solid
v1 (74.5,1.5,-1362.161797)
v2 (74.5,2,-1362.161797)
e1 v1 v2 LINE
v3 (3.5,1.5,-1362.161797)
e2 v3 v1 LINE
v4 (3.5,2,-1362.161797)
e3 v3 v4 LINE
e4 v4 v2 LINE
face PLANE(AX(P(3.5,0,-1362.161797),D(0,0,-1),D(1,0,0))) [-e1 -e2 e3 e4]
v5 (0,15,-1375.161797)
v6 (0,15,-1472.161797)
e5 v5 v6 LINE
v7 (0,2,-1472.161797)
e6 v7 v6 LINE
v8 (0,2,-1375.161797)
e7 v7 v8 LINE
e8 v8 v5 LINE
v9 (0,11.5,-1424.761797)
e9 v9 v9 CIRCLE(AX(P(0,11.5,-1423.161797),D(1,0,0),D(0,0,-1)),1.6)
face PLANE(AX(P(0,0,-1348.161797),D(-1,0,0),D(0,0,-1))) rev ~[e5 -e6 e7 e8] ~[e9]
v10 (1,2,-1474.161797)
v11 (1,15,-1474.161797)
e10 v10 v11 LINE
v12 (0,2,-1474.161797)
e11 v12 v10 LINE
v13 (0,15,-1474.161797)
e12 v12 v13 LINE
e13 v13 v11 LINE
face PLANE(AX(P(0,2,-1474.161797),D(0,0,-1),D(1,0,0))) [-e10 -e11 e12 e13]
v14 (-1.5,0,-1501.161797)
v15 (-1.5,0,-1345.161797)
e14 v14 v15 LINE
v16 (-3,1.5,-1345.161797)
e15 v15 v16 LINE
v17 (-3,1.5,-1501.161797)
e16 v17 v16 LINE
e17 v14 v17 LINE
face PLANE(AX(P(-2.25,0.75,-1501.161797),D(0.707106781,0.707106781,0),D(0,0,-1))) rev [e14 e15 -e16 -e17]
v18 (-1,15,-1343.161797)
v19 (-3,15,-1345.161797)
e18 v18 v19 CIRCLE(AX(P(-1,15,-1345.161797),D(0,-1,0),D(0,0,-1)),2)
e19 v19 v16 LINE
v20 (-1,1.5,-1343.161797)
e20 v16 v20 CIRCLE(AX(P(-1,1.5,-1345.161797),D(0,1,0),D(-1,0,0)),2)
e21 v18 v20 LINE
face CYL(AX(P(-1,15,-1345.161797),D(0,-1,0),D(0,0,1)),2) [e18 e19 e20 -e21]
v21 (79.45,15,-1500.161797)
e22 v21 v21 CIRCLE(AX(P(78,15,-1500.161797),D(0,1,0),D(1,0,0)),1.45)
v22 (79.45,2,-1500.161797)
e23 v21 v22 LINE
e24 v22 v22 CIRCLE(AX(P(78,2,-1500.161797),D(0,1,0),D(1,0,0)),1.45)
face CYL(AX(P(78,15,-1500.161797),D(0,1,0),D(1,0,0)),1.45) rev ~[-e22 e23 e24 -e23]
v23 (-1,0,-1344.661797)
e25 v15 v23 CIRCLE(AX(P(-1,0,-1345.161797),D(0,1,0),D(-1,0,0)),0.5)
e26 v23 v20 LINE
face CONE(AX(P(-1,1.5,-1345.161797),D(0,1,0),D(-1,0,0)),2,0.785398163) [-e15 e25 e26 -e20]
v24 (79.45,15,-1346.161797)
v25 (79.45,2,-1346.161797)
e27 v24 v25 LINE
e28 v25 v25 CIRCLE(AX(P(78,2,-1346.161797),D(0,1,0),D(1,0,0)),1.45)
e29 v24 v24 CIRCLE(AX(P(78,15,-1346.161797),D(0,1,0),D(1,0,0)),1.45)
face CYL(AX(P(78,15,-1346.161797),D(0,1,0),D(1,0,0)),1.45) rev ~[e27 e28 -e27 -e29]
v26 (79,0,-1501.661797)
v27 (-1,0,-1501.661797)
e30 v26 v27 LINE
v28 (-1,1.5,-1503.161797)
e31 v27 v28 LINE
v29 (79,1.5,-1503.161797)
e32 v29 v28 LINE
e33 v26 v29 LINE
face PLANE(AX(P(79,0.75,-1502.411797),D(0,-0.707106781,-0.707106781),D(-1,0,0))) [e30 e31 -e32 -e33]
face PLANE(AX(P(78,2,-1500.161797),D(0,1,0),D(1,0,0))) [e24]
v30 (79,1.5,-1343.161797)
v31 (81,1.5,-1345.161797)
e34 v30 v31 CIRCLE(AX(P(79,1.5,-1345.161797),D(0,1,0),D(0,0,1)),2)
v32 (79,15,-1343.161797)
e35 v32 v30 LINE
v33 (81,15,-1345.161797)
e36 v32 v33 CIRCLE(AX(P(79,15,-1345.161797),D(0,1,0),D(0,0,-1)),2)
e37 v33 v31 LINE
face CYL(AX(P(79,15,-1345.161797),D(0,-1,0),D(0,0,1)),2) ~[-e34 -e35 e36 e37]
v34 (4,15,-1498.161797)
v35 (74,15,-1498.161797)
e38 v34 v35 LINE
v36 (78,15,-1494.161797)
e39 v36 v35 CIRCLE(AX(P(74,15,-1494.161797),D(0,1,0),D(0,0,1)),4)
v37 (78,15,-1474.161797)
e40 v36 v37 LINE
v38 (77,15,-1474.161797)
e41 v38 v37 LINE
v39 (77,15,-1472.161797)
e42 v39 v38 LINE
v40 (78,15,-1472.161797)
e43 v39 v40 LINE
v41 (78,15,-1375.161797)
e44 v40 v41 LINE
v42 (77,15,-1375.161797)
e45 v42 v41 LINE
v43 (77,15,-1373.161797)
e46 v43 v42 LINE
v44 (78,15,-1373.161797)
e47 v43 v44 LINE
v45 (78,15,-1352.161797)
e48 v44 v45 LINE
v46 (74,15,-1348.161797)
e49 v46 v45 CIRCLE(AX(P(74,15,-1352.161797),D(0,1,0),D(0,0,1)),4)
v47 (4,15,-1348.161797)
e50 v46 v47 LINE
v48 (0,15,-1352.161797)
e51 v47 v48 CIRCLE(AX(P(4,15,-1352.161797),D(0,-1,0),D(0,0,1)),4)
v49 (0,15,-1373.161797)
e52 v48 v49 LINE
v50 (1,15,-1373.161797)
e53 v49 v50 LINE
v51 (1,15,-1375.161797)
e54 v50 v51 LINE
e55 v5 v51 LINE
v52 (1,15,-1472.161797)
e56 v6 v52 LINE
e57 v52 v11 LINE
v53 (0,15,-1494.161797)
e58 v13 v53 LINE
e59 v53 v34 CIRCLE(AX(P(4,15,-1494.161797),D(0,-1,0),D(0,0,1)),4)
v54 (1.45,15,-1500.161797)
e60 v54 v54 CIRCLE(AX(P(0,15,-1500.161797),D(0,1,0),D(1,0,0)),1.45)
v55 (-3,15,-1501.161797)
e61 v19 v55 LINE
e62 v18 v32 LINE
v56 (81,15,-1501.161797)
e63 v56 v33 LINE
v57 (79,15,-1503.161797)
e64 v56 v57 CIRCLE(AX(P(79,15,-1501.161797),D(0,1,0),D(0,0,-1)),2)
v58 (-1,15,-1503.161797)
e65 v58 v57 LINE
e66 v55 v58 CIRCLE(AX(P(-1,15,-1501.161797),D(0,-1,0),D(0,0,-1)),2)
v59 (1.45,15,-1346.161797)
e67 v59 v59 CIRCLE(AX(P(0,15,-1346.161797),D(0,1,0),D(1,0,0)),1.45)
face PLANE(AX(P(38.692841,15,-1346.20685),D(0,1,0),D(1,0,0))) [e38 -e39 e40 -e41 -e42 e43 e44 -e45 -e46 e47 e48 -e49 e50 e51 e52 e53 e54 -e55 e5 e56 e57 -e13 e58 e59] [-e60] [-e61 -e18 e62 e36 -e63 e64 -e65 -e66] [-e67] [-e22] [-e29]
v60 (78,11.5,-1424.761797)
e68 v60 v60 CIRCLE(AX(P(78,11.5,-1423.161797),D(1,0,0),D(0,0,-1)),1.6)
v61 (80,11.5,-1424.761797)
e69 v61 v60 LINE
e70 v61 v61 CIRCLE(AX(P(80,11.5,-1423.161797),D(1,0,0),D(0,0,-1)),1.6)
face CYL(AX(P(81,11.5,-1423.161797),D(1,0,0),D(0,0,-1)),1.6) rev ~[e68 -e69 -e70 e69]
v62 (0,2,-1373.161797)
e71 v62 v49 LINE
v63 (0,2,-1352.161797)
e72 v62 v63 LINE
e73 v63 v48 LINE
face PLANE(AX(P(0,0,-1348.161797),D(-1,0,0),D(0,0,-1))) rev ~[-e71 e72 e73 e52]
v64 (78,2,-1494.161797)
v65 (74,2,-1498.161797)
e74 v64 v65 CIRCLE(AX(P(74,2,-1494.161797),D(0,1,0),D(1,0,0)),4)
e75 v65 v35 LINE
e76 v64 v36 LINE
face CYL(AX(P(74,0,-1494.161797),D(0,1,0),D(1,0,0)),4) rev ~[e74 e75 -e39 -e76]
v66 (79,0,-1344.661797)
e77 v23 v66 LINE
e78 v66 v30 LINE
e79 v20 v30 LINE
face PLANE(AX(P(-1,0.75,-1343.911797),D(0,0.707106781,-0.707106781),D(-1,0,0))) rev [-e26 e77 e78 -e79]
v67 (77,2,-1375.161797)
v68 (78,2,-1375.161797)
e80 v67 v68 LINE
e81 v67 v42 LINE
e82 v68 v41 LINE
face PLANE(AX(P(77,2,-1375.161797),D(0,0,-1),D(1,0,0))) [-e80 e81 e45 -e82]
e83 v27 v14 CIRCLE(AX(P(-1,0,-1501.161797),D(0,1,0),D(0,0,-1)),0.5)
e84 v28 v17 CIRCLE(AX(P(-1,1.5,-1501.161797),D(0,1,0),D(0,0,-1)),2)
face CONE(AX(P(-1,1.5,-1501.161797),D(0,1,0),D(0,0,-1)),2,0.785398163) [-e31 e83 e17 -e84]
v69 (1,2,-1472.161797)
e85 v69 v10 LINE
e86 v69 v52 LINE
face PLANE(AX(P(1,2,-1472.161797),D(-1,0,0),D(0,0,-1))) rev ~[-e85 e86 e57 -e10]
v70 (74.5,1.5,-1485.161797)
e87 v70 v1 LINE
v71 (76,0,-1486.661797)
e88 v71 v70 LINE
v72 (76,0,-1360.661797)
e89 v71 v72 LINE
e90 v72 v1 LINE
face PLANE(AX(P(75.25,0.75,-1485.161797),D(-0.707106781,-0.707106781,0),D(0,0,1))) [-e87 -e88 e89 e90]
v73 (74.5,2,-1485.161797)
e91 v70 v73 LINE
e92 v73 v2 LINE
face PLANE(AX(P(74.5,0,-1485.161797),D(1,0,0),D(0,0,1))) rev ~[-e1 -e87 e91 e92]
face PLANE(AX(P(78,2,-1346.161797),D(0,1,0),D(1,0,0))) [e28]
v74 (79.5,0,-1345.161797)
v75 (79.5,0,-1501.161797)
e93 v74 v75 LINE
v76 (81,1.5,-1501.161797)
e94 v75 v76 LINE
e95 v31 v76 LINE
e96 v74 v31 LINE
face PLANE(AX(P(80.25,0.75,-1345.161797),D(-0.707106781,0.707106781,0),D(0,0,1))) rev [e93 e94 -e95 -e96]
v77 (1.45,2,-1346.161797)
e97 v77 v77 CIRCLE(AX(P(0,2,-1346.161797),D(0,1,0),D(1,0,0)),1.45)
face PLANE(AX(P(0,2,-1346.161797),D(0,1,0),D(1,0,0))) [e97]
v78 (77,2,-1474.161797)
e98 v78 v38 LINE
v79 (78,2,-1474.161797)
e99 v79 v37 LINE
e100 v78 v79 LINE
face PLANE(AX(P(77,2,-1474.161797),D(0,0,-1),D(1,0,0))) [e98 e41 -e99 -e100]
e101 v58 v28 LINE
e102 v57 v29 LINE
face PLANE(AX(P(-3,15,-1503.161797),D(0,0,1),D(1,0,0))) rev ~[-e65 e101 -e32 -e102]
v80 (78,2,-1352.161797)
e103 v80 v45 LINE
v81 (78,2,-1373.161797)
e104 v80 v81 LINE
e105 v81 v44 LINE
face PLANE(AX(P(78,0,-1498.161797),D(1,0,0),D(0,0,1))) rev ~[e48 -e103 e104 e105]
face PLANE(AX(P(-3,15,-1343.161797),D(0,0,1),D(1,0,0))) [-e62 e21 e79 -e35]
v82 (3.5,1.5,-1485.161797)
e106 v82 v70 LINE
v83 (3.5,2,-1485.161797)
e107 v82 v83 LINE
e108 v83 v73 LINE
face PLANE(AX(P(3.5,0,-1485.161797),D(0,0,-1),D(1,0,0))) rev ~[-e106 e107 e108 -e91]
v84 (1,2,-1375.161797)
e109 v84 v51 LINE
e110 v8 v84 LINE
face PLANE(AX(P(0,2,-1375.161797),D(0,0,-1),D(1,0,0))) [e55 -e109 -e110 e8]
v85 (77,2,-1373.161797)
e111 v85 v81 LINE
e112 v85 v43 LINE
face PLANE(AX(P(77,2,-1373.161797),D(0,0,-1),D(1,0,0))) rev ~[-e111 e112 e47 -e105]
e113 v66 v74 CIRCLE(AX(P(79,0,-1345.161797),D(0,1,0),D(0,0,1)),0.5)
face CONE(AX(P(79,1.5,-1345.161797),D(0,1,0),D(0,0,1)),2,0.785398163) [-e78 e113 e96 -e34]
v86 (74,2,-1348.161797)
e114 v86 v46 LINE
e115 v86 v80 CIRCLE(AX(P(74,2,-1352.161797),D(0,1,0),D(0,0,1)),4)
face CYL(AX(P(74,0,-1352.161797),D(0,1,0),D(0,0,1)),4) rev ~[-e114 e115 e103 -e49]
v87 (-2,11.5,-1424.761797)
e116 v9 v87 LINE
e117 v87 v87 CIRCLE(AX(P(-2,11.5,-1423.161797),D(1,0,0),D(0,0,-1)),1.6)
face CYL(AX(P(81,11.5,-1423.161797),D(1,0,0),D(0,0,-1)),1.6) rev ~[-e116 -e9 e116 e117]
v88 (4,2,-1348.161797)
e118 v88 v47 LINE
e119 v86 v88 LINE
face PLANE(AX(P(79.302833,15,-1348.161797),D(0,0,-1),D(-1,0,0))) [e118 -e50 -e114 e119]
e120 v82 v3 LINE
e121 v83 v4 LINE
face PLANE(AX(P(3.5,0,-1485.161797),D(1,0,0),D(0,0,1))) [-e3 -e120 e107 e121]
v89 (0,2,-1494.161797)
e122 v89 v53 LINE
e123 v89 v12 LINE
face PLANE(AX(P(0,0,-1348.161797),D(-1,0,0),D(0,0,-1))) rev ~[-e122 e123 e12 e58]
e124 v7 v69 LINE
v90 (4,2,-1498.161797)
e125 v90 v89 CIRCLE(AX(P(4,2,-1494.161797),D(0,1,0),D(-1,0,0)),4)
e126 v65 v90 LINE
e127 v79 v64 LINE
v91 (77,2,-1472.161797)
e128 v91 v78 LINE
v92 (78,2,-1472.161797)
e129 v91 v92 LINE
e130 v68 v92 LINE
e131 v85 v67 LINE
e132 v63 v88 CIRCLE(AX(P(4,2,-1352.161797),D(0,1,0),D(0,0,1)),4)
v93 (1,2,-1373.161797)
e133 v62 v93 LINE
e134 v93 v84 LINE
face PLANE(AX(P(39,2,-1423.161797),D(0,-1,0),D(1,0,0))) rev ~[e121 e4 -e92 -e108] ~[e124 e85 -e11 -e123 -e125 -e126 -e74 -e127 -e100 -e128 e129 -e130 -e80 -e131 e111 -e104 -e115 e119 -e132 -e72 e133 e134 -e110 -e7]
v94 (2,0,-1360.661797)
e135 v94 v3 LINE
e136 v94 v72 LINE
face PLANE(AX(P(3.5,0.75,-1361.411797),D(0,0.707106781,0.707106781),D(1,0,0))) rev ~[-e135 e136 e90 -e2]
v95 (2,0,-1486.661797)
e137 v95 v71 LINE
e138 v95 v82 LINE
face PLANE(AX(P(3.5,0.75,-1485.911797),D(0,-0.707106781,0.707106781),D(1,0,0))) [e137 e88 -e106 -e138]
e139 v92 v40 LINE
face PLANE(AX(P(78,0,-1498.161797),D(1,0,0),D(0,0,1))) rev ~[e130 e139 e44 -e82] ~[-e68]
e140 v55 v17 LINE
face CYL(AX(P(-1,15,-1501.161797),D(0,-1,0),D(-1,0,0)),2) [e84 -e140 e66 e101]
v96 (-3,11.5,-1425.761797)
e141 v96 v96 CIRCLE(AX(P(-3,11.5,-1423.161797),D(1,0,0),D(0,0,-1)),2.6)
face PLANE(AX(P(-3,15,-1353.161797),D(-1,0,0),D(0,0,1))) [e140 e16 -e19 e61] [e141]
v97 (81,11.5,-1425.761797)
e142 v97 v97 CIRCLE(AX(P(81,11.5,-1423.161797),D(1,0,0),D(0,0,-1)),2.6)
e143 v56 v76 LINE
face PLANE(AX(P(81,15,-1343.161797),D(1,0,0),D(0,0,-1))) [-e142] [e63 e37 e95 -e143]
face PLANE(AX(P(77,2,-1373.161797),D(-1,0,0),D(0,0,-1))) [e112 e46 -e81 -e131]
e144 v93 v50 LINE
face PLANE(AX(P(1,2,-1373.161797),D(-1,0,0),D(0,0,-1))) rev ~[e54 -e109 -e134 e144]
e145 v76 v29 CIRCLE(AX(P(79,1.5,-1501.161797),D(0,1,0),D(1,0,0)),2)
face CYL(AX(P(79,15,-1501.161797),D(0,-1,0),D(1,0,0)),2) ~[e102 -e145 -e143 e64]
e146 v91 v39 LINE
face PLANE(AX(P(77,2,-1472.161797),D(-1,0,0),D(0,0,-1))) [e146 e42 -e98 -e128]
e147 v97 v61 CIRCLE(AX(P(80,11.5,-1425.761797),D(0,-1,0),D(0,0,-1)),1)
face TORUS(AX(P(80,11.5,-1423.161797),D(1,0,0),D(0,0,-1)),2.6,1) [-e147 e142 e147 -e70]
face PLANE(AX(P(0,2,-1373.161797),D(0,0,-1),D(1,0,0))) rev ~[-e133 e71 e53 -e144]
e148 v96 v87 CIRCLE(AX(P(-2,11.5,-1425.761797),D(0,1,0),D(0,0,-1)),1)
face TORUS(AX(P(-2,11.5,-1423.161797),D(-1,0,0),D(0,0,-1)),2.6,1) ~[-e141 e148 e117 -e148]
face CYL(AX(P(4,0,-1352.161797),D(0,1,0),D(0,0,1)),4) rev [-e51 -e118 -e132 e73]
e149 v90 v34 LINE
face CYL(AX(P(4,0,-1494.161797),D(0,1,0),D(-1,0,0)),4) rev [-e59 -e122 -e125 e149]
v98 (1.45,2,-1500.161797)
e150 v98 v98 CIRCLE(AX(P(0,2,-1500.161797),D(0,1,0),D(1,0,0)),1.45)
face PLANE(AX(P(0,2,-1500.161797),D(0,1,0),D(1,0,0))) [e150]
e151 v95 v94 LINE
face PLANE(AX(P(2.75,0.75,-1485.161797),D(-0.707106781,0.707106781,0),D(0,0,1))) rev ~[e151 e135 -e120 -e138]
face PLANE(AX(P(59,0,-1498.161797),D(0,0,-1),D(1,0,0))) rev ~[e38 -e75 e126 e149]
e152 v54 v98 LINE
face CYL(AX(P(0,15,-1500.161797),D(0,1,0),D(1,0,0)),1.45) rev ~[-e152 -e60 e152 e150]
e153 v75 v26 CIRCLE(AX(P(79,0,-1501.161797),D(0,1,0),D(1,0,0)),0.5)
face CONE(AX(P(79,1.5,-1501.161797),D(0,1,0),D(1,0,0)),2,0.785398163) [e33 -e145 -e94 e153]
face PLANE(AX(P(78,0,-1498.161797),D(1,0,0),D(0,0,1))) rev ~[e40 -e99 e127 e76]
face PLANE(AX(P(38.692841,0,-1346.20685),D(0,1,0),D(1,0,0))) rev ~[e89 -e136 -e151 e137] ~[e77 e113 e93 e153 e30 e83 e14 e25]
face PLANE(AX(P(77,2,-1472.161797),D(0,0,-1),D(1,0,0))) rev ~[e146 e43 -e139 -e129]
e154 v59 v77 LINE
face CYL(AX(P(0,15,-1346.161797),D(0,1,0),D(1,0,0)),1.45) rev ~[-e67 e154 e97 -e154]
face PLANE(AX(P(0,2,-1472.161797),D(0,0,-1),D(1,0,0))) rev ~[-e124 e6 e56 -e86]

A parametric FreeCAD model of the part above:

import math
import FreeCAD as App
import Part
import Sketcher

V = App.Vector
Q = App.Units.Quantity


def edges_at(feature, points):
    """Names of the edges that pass closest to the given points."""
    edges = feature.Shape.Edges
    near = lambda p: min(range(len(edges)), key=lambda i: edges[i].distToShape(Part.Vertex(*p))[0])
    return sorted({f"Edge{near(p) + 1}" for p in points})


def add_polygon(sketch, points):
    """Adds a closed chain of lines whose ends are joined by coincident constraints."""
    first, n = sketch.GeometryCount, len(points)
    for a, b in zip(points, points[1:] + points[:1]):
        sketch.addGeometry(Part.LineSegment(App.Vector(*a, 0), App.Vector(*b, 0)), False)
    for i in range(n):
        sketch.addConstraint(Sketcher.Constraint("Coincident", first + i, 2, first + (i + 1) % n, 1))

doc = App.newDocument("Part")
body = doc.addObject("PartDesign::Body", "Body")

sketch1 = body.newObject("Sketcher::SketchObject", "Sketch")
sketch1.AttachmentSupport = (doc.getObject("XZ_Plane"), [""])
sketch1.MapMode = "FlatFace"
add_polygon(sketch1, [(-3, -1501), (-3, -1345), (17, -1345), (27, -1325), (51, -1325), (61, -1345), (81, -1345), (81, -1501), (61, -1501), (51, -1521), (27, -1521), (17, -1501)])
add_polygon(sketch1, [(49, -1518), (59, -1498), (78, -1498), (78, -1348), (59, -1348), (49, -1328), (29, -1328), (19, -1348), (0, -1348), (0, -1498), (19, -1498), (29, -1518)])
sketch1.addConstraint([
    Sketcher.Constraint("Vertical", 0),
    Sketcher.Constraint("Horizontal", 1),
    Sketcher.Constraint("Horizontal", 3),
    Sketcher.Constraint("Horizontal", 5),
    Sketcher.Constraint("Vertical", 6),
    Sketcher.Constraint("Horizontal", 7),
    Sketcher.Constraint("Horizontal", 9),
    Sketcher.Constraint("Horizontal", 11),
    Sketcher.Constraint("Horizontal", 13),
    Sketcher.Constraint("Vertical", 14),
    Sketcher.Constraint("Horizontal", 15),
    Sketcher.Constraint("Horizontal", 17),
    Sketcher.Constraint("Horizontal", 19),
    Sketcher.Constraint("Vertical", 20),
    Sketcher.Constraint("Horizontal", 21),
    Sketcher.Constraint("Horizontal", 23),
    Sketcher.Constraint("PointOnObject", 19, 2, -2),
    Sketcher.Constraint("Parallel", 2, 8),
    Sketcher.Constraint("Parallel", 4, 10),
    Sketcher.Constraint("Parallel", 8, 12),
    Sketcher.Constraint("Parallel", 10, 16),
    Sketcher.Constraint("Parallel", 12, 18),
    Sketcher.Constraint("Parallel", 16, 22),
    Sketcher.Constraint("Horizontal", 1, 2, 4, 2),
    Sketcher.Constraint("Horizontal", 7, 2, 10, 2),
    Sketcher.Constraint("Horizontal", 15, 2, 18, 2),
    Sketcher.Constraint("Horizontal", 13, 2, 20, 2),
    Sketcher.Constraint("Vertical", 4, 2, 7, 2),
    Sketcher.Constraint("Vertical", 3, 2, 8, 2),
    Sketcher.Constraint("Vertical", 2, 2, 9, 2),
    Sketcher.Constraint("Vertical", 1, 2, 10, 2),
    Sketcher.Constraint("Vertical", 12, 2, 15, 2),
    Sketcher.Constraint("Vertical", 18, 2, 21, 2),
    Sketcher.Constraint("Vertical", 17, 2, 22, 2),
    Sketcher.Constraint("Equal", 1, 5),
    Sketcher.Constraint("Equal", 15, 19),
    Sketcher.Constraint("Equal", 10, 12),
    Sketcher.Constraint("DistanceX", 13, 1, 13, 2, Q("19 mm")),
    Sketcher.Constraint("DistanceX", 17, 2, 17, 1, Q("20 mm")),
    Sketcher.Constraint("DistanceY", 0, 1, 0, 2, Q("156 mm")),
    Sketcher.Constraint("DistanceY", 14, 1, 14, 2, Q("150 mm")),
    Sketcher.Constraint("DistanceX", 0, 2, -1, 1, Q("3 mm")),
    Sketcher.Constraint("DistanceX", -1, 1, 5, 2, Q("81 mm")),
    Sketcher.Constraint("DistanceX", -1, 1, 12, 2, Q("59 mm")),
    Sketcher.Constraint("DistanceY", 1, 2, 2, 2, Q("20 mm")),
    Sketcher.Constraint("DistanceY", 7, 2, 12, 2, Q("3 mm")),
    Sketcher.Constraint("DistanceX", 1, 1, 1, 2, Q("20.145898 mm")),
    Sketcher.Constraint("DistanceY", 0, 2, -1, 1, Q("1345.161797 mm")),
])
pad1 = body.newObject("PartDesign::Pad", "Pad")
pad1.Profile = sketch1
pad1.Length = 15
pad1.Reversed = True
doc.recompute()

fillet = body.newObject("PartDesign::Fillet", "Fillet")
fillet.Base = (pad1, edges_at(pad1, [
    (49, 7.5, -1518.162),
    (29, 7.5, -1518.162),
    (19, 7.5, -1498.162),
    (59, 7.5, -1498.162),
    (17.146, 7.5, -1501.162),
    (27.146, 7.5, -1521.162),
    (50.854, 7.5, -1521.162),
    (60.854, 7.5, -1501.162),
]))
fillet.Radius = 2
doc.recompute()

fillet2 = body.newObject("PartDesign::Fillet", "Fillet001")
fillet2.Base = (fillet, edges_at(fillet, [
    (19, 7.5, -1348.162),
    (29, 7.5, -1328.162),
    (49, 7.5, -1328.162),
    (59, 7.5, -1348.162),
    (60.854, 7.5, -1345.162),
    (50.854, 7.5, -1325.162),
    (27.146, 7.5, -1325.162),
    (17.146, 7.5, -1345.162),
]))
fillet2.Radius = 2
doc.recompute()

fillet3 = body.newObject("PartDesign::Fillet", "Fillet002")
fillet3.Base = (fillet2, edges_at(fillet2, [
    (-3, 7.5, -1501.162),
    (81, 7.5, -1501.162),
    (81, 7.5, -1345.162),
    (-3, 7.5, -1345.162),
]))
fillet3.Radius = 4
doc.recompute()

fillet4 = body.newObject("PartDesign::Fillet", "Fillet003")
fillet4.Base = (fillet3, edges_at(fillet3, [
    (0, 7.5, -1498.162),
    (0, 7.5, -1348.162),
    (78, 7.5, -1348.162),
    (78, 7.5, -1498.162),
]))
fillet4.Radius = 4

sketch2 = body.newObject("Sketcher::SketchObject", "Sketch001")
sketch2.AttachmentSupport = (doc.getObject("XZ_Plane"), [""])
sketch2.MapMode = "FlatFace"
sketch2.AttachmentOffset = App.Placement(V(0, 0, -15), App.Rotation())
sketch2.addGeometry([
    Part.LineSegment(V(8.5, -1345.2, 0), V(22.1, -1335.2, 0)),
    Part.LineSegment(V(22.1, -1335.2, 0), V(17.7, -1344.1, 0)),
    Part.ArcOfCircle(Part.Circle(V(15.9, -1343.2, 0), V(0, 0, 1), 2), math.radians(-90), math.radians(-27)),
    Part.LineSegment(V(15.9, -1345.2, 0), V(8.5, -1345.2, 0)),
    Part.LineSegment(V(69.5, -1345.2, 0), V(62.1, -1345.2, 0)),
    Part.ArcOfCircle(Part.Circle(V(62.1, -1343.2, 0), V(0, 0, 1), 2), math.radians(-153), math.radians(-90)),
    Part.LineSegment(V(60.3, -1344.1, 0), V(55.9, -1335.2, 0)),
    Part.LineSegment(V(55.9, -1335.2, 0), V(69.5, -1345.2, 0)),
    Part.LineSegment(V(69.5, -1501.2, 0), V(55.9, -1511.2, 0)),
    Part.LineSegment(V(55.9, -1511.2, 0), V(60.3, -1502.3, 0)),
    Part.ArcOfCircle(Part.Circle(V(62.1, -1503.2, 0), V(0, 0, 1), 2), math.radians(90), math.radians(153)),
    Part.LineSegment(V(62.1, -1501.2, 0), V(69.5, -1501.2, 0)),
    Part.LineSegment(V(8.5, -1501.2, 0), V(15.9, -1501.2, 0)),
    Part.ArcOfCircle(Part.Circle(V(15.9, -1503.2, 0), V(0, 0, 1), 2), math.radians(27), math.radians(90)),
    Part.LineSegment(V(17.7, -1502.3, 0), V(22.1, -1511.2, 0)),
    Part.LineSegment(V(22.1, -1511.2, 0), V(8.5, -1501.2, 0)),
], False)
sketch2.addConstraint([
    Sketcher.Constraint("Coincident", 0, 2, 1, 1),
    Sketcher.Constraint("Tangent", 1, 2, 2, 2),
    Sketcher.Constraint("Tangent", 2, 1, 3, 1),
    Sketcher.Constraint("Coincident", 3, 2, 0, 1),
    Sketcher.Constraint("Tangent", 4, 2, 5, 2),
    Sketcher.Constraint("Tangent", 5, 1, 6, 1),
    Sketcher.Constraint("Coincident", 6, 2, 7, 1),
    Sketcher.Constraint("Coincident", 7, 2, 4, 1),
    Sketcher.Constraint("Coincident", 8, 2, 9, 1),
    Sketcher.Constraint("Tangent", 9, 2, 10, 2),
    Sketcher.Constraint("Tangent", 10, 1, 11, 1),
    Sketcher.Constraint("Coincident", 11, 2, 8, 1),
    Sketcher.Constraint("Tangent", 12, 2, 13, 2),
    Sketcher.Constraint("Tangent", 13, 1, 14, 1),
    Sketcher.Constraint("Coincident", 14, 2, 15, 1),
    Sketcher.Constraint("Coincident", 15, 2, 12, 1),
    Sketcher.Constraint("Horizontal", 3),
    Sketcher.Constraint("Horizontal", 4),
    Sketcher.Constraint("Horizontal", 11),
    Sketcher.Constraint("Horizontal", 12),
    Sketcher.Constraint("Equal", 2, 5),
    Sketcher.Constraint("Equal", 5, 10),
    Sketcher.Constraint("Equal", 10, 13),
    Sketcher.Constraint("Parallel", 0, 8),
    Sketcher.Constraint("Parallel", 1, 9),
    Sketcher.Constraint("Parallel", 6, 14),
    Sketcher.Constraint("Parallel", 7, 15),
    Sketcher.Constraint("Horizontal", 2, 3, 5, 3),
    Sketcher.Constraint("Horizontal", 10, 3, 13, 3),
    Sketcher.Constraint("Horizontal", 1, 2, 5, 1),
    Sketcher.Constraint("Horizontal", 0, 2, 6, 2),
    Sketcher.Constraint("Horizontal", 8, 2, 14, 2),
    Sketcher.Constraint("Vertical", 5, 3, 10, 3),
    Sketcher.Constraint("Vertical", 2, 3, 13, 3),
    Sketcher.Constraint("Vertical", 6, 2, 8, 2),
    Sketcher.Constraint("Vertical", 7, 2, 11, 2),
    Sketcher.Constraint("Radius", 2, Q("2 mm")),
    Sketcher.Constraint("DistanceY", 10, 3, 5, 3, Q("160 mm")),
    Sketcher.Constraint("DistanceY", 2, 3, 0, 2, Q("8 mm")),
    Sketcher.Constraint("DistanceX", -1, 1, 0, 2, Q("22.145898 mm")),
    Sketcher.Constraint("DistanceX", -1, 1, 6, 2, Q("55.854102 mm")),
    Sketcher.Constraint("Distance", 1, Q("9.944272 mm")),
    Sketcher.Constraint("DistanceX", 3, 2, 3, 1, Q("7.454915 mm")),
    Sketcher.Constraint("DistanceY", 9, 2, -1, 1, Q("1502.26737 mm")),
])
pad2 = body.newObject("PartDesign::Pad", "Pad001")
pad2.Profile = sketch2
pad2.Length = 15
doc.recompute()

fillet5 = body.newObject("PartDesign::Fillet", "Fillet004")
fillet5.Base = (pad2, edges_at(pad2, [
    (8.455, 7.5, -1345.162),
    (22.146, 7.5, -1335.162),
    (69.545, 7.5, -1345.162),
    (55.854, 7.5, -1335.162),
    (55.854, 7.5, -1511.162),
    (69.545, 7.5, -1501.162),
    (8.455, 7.5, -1501.162),
    (22.146, 7.5, -1511.162),
]))
fillet5.Radius = 2

sketch3 = body.newObject("Sketcher::SketchObject", "Sketch002")
sketch3.AttachmentSupport = (doc.getObject("XZ_Plane"), [""])
sketch3.MapMode = "FlatFace"
sketch3.AttachmentOffset = App.Placement(V(0, 0, -15), App.Rotation())
sketch3.addGeometry([
    Part.Circle(V(16, -1344.7, 0), V(0, 0, 1), 1.4),
    Part.Circle(V(62, -1344.7, 0), V(0, 0, 1), 1.4),
    Part.Circle(V(62, -1501.7, 0), V(0, 0, 1), 1.4),
    Part.Circle(V(16, -1501.7, 0), V(0, 0, 1), 1.4),
], False)
sketch3.addConstraint([
    Sketcher.Constraint("Equal", 0, 1),
    Sketcher.Constraint("Equal", 1, 2),
    Sketcher.Constraint("Equal", 2, 3),
    Sketcher.Constraint("Horizontal", 0, 3, 1, 3),
    Sketcher.Constraint("Horizontal", 2, 3, 3, 3),
    Sketcher.Constraint("Vertical", 1, 3, 2, 3),
    Sketcher.Constraint("Vertical", 0, 3, 3, 3),
    Sketcher.Constraint("Diameter", 0, Q("2.9 mm")),
    Sketcher.Constraint("DistanceX", -1, 1, 0, 3, Q("16 mm")),
    Sketcher.Constraint("DistanceX", -1, 1, 1, 3, Q("62 mm")),
    Sketcher.Constraint("DistanceY", 2, 3, 1, 3, Q("157 mm")),
    Sketcher.Constraint("DistanceY", 0, 3, -1, 1, Q("1344.661797 mm")),
])
pocket1 = body.newObject("PartDesign::Pocket", "Pocket")
pocket1.Profile = sketch3
pocket1.Length = 10
pocket1.Reversed = True

sketch4 = body.newObject("Sketcher::SketchObject", "Sketch003")
sketch4.AttachmentSupport = (doc.getObject("XZ_Plane"), [""])
sketch4.MapMode = "FlatFace"
sketch4.addGeometry([
    Part.LineSegment(V(70.2, -1501.2, 0), V(77, -1501.2, 0)),
    Part.ArcOfCircle(Part.Circle(V(77, -1497.2, 0), V(0, 0, 1), 4), math.radians(-90), math.radians(0)),
    Part.LineSegment(V(81, -1497.2, 0), V(81, -1487.2, 0)),
    Part.LineSegment(V(81, -1487.2, 0), V(-3, -1487.2, 0)),
    Part.LineSegment(V(-3, -1487.2, 0), V(-3, -1497.2, 0)),
    Part.ArcOfCircle(Part.Circle(V(1, -1497.2, 0), V(0, 0, 1), 4), math.radians(-180), math.radians(-90)),
    Part.LineSegment(V(1, -1501.2, 0), V(7.8, -1501.2, 0)),
    Part.ArcOfCircle(Part.Circle(V(7.8, -1503.2, 0), V(0, 0, 1), 2), math.radians(54), math.radians(90)),
    Part.LineSegment(V(9, -1501.5, 0), V(21.8, -1510.9, 0)),
    Part.ArcOfCircle(Part.Circle(V(20.6, -1512.5, 0), V(0, 0, 1), 2), math.radians(27), math.radians(54)),
    Part.LineSegment(V(22.4, -1511.6, 0), V(26.6, -1520.1, 0)),
    Part.ArcOfCircle(Part.Circle(V(28.4, -1519.2, 0), V(0, 0, 1), 2), math.radians(-153), math.radians(-90)),
    Part.LineSegment(V(28.4, -1521.2, 0), V(49.6, -1521.2, 0)),
    Part.ArcOfCircle(Part.Circle(V(49.6, -1519.2, 0), V(0, 0, 1), 2), math.radians(-90), math.radians(-27)),
    Part.LineSegment(V(51.4, -1520.1, 0), V(55.6, -1511.6, 0)),
    Part.ArcOfCircle(Part.Circle(V(57.4, -1512.5, 0), V(0, 0, 1), 2), math.radians(126), math.radians(153)),
    Part.LineSegment(V(56.2, -1510.9, 0), V(69, -1501.5, 0)),
    Part.ArcOfCircle(Part.Circle(V(70.2, -1503.2, 0), V(0, 0, 1), 2), math.radians(90), math.radians(126)),
    Part.LineSegment(V(81, -1359.2, 0), V(81, -1349.2, 0)),
    Part.ArcOfCircle(Part.Circle(V(77, -1349.2, 0), V(0, 0, 1), 4), math.radians(0), math.radians(90)),
    Part.LineSegment(V(77, -1345.2, 0), V(70.2, -1345.2, 0)),
    Part.ArcOfCircle(Part.Circle(V(70.2, -1343.2, 0), V(0, 0, 1), 2), math.radians(-126), math.radians(-90)),
    Part.LineSegment(V(69, -1344.8, 0), V(56.2, -1335.4, 0)),
    Part.ArcOfCircle(Part.Circle(V(57.4, -1333.8, 0), V(0, 0, 1), 2), math.radians(-153), math.radians(-126)),
    Part.LineSegment(V(55.6, -1334.7, 0), V(51.4, -1326.3, 0)),
    Part.ArcOfCircle(Part.Circle(V(49.6, -1327.2, 0), V(0, 0, 1), 2), math.radians(27), math.radians(90)),
    Part.LineSegment(V(49.6, -1325.2, 0), V(28.4, -1325.2, 0)),
    Part.ArcOfCircle(Part.Circle(V(28.4, -1327.2, 0), V(0, 0, 1), 2), math.radians(90), math.radians(153)),
    Part.LineSegment(V(26.6, -1326.3, 0), V(22.4, -1334.7, 0)),
    Part.ArcOfCircle(Part.Circle(V(20.6, -1333.8, 0), V(0, 0, 1), 2), math.radians(-54), math.radians(-27)),
    Part.LineSegment(V(21.8, -1335.4, 0), V(9, -1344.8, 0)),
    Part.ArcOfCircle(Part.Circle(V(7.8, -1343.2, 0), V(0, 0, 1), 2), math.radians(-90), math.radians(-54)),
    Part.LineSegment(V(7.8, -1345.2, 0), V(1, -1345.2, 0)),
    Part.ArcOfCircle(Part.Circle(V(1, -1349.2, 0), V(0, 0, 1), 4), math.radians(90), math.radians(180)),
    Part.LineSegment(V(-3, -1349.2, 0), V(-3, -1359.2, 0)),
    Part.LineSegment(V(-3, -1359.2, 0), V(81, -1359.2, 0)),
], False)
sketch4.addConstraint([
    Sketcher.Constraint("Tangent", 0, 2, 1, 1),
    Sketcher.Constraint("Tangent", 1, 2, 2, 1),
    Sketcher.Constraint("Coincident", 2, 2, 3, 1),
    Sketcher.Constraint("Coincident", 3, 2, 4, 1),
    Sketcher.Constraint("Tangent", 4, 2, 5, 1),
    Sketcher.Constraint("Tangent", 5, 2, 6, 1),
    Sketcher.Constraint("Tangent", 6, 2, 7, 2),
    Sketcher.Constraint("Tangent", 7, 1, 8, 1),
    Sketcher.Constraint("Tangent", 8, 2, 9, 2),
    Sketcher.Constraint("Tangent", 9, 1, 10, 1),
    Sketcher.Constraint("Tangent", 10, 2, 11, 1),
    Sketcher.Constraint("Tangent", 11, 2, 12, 1),
    Sketcher.Constraint("Tangent", 12, 2, 13, 1),
    Sketcher.Constraint("Tangent", 13, 2, 14, 1),
    Sketcher.Constraint("Tangent", 14, 2, 15, 2),
    Sketcher.Constraint("Tangent", 15, 1, 16, 1),
    Sketcher.Constraint("Tangent", 16, 2, 17, 2),
    Sketcher.Constraint("Tangent", 17, 1, 0, 1),
    Sketcher.Constraint("Tangent", 18, 2, 19, 1),
    Sketcher.Constraint("Tangent", 19, 2, 20, 1),
    Sketcher.Constraint("Tangent", 20, 2, 21, 2),
    Sketcher.Constraint("Tangent", 21, 1, 22, 1),
    Sketcher.Constraint("Tangent", 22, 2, 23, 2),
    Sketcher.Constraint("Tangent", 23, 1, 24, 1),
    Sketcher.Constraint("Tangent", 24, 2, 25, 1),
    Sketcher.Constraint("Tangent", 25, 2, 26, 1),
    Sketcher.Constraint("Tangent", 26, 2, 27, 1),
    Sketcher.Constraint("Tangent", 27, 2, 28, 1),
    Sketcher.Constraint("Tangent", 28, 2, 29, 2),
    Sketcher.Constraint("Tangent", 29, 1, 30, 1),
    Sketcher.Constraint("Tangent", 30, 2, 31, 2),
    Sketcher.Constraint("Tangent", 31, 1, 32, 1),
    Sketcher.Constraint("Tangent", 32, 2, 33, 1),
    Sketcher.Constraint("Tangent", 33, 2, 34, 1),
    Sketcher.Constraint("Coincident", 34, 2, 35, 1),
    Sketcher.Constraint("Coincident", 35, 2, 18, 1),
    Sketcher.Constraint("Horizontal", 0),
    Sketcher.Constraint("Vertical", 2),
    Sketcher.Constraint("Horizontal", 3),
    Sketcher.Constraint("Vertical", 4),
    Sketcher.Constraint("Horizontal", 6),
    Sketcher.Constraint("Horizontal", 12),
    Sketcher.Constraint("Vertical", 18),
    Sketcher.Constraint("Horizontal", 20),
    Sketcher.Constraint("Horizontal", 26),
    Sketcher.Constraint("Horizontal", 32),
    Sketcher.Constraint("Vertical", 34),
    Sketcher.Constraint("Horizontal", 35),
    Sketcher.Constraint("Equal", 1, 5),
    Sketcher.Constraint("Equal", 7, 9),
    Sketcher.Constraint("Equal", 9, 11),
    Sketcher.Constraint("Equal", 11, 13),
    Sketcher.Constraint("Equal", 13, 15),
    Sketcher.Constraint("Equal", 15, 17),
    Sketcher.Constraint("Equal", 5, 19),
    Sketcher.Constraint("Equal", 17, 21),
    Sketcher.Constraint("Equal", 21, 23),
    Sketcher.Constraint("Equal", 23, 25),
    Sketcher.Constraint("Equal", 25, 27),
    Sketcher.Constraint("Equal", 27, 29),
    Sketcher.Constraint("Equal", 29, 31),
    Sketcher.Constraint("Equal", 19, 33),
    Sketcher.Constraint("Parallel", 8, 22),
    Sketcher.Constraint("Parallel", 10, 24),
    Sketcher.Constraint("Parallel", 14, 28),
    Sketcher.Constraint("Parallel", 16, 30),
    Sketcher.Constraint("Horizontal", 1, 3, 5, 3),
    Sketcher.Constraint("Horizontal", 9, 3, 15, 3),
    Sketcher.Constraint("Horizontal", 23, 3, 29, 3),
    Sketcher.Constraint("Horizontal", 21, 3, 31, 3),
    Sketcher.Constraint("Horizontal", 10, 2, 13, 2),
    Sketcher.Constraint("Horizontal", 8, 2, 15, 1),
    Sketcher.Constraint("Vertical", 1, 3, 19, 3),
    Sketcher.Constraint("Vertical", 17, 3, 21, 3),
    Sketcher.Constraint("Vertical", 15, 3, 23, 3),
    Sketcher.Constraint("Vertical", 13, 3, 25, 3),
    Sketcher.Constraint("Vertical", 11, 3, 27, 3),
    Sketcher.Constraint("Vertical", 5, 3, 33, 3),
    Sketcher.Constraint("Equal", 0, 6),
    Sketcher.Constraint("Equal", 4, 18),
    Sketcher.Constraint("Radius", 1, Q("4 mm")),
    Sketcher.Constraint("Radius", 7, Q("2 mm")),
    Sketcher.Constraint("DistanceX", 3, 2, 3, 1, Q("84 mm")),
    Sketcher.Constraint("DistanceY", 2, 1, 2, 2, Q("10 mm")),
    Sketcher.Constraint("DistanceX", -1, 1, 1, 3, Q("77 mm")),
    Sketcher.Constraint("DistanceY", 11, 3, 7, 3, Q("16 mm")),
    Sketcher.Constraint("DistanceY", 1, 3, 19, 3, Q("148 mm")),
    Sketcher.Constraint("DistanceX", 8, 2, 9, 1, Q("0.609202 mm")),
    Sketcher.Constraint("DistanceY", 10, 2, 8, 2, Q("9.180799 mm")),
    Sketcher.Constraint("DistanceX", 0, 1, 0, 2, Q("6.802283 mm")),
    Sketcher.Constraint("DistanceX", 12, 1, 12, 2, Q("21.236068 mm")),
    Sketcher.Constraint("DistanceY", 23, 3, -1, 1, Q("1333.833109 mm")),
])
pad3 = body.newObject("PartDesign::Pad", "Pad002")
pad3.Profile = sketch4
pad3.Length = 2
pad3.Reversed = True

sketch5 = body.newObject("Sketcher::SketchObject", "Sketch004")
sketch5.AttachmentSupport = (doc.getObject("YZ_Plane"), [""])
sketch5.MapMode = "FlatFace"
sketch5.AttachmentOffset = App.Placement(V(0, 0, 81), App.Rotation())
sketch5.addGeometry(Part.Circle(V(11.5, -1423.2, 0), V(0, 0, 1), 1.6), False)
sketch5.addConstraint([
    Sketcher.Constraint("Diameter", 0, Q("3.2 mm")),
    Sketcher.Constraint("DistanceX", -1, 1, 0, 3, Q("11.5 mm")),
    Sketcher.Constraint("DistanceY", 0, 3, -1, 1, Q("1423.161797 mm")),
])
pocket2 = body.newObject("PartDesign::Pocket", "Pocket001")
pocket2.Profile = sketch5
pocket2.Length = 84
doc.recompute()

fillet6 = body.newObject("PartDesign::Fillet", "Fillet005")
fillet6.Base = (pocket2, edges_at(pocket2, [(-3, 11.5, -1421.562), (81, 11.5, -1421.562)]))
fillet6.Radius = 1
doc.recompute()

fillet7 = body.newObject("PartDesign::Fillet", "Fillet006")
fillet7.Base = (fillet6, edges_at(fillet6, [
    (14.55, 15, -1501.662),
    (60.55, 15, -1501.662),
    (60.55, 15, -1344.662),
    (14.55, 15, -1344.662),
]))
fillet7.Radius = 1

sketch6 = body.newObject("Sketcher::SketchObject", "Sketch005")
sketch6.AttachmentSupport = (doc.getObject("XZ_Plane"), [""])
sketch6.MapMode = "FlatFace"
add_polygon(sketch6, [(0, -1359), (0, -1487), (78, -1487), (78, -1359)])
add_polygon(sketch6, [(74, -1485), (4, -1485), (4, -1362), (74, -1362)])
sketch6.addConstraint([
    Sketcher.Constraint("Vertical", 0),
    Sketcher.Constraint("Horizontal", 1),
    Sketcher.Constraint("Vertical", 2),
    Sketcher.Constraint("Horizontal", 3),
    Sketcher.Constraint("Horizontal", 4),
    Sketcher.Constraint("Vertical", 5),
    Sketcher.Constraint("Horizontal", 6),
    Sketcher.Constraint("Vertical", 7),
    Sketcher.Constraint("PointOnObject", 0, 2, -2),
    Sketcher.Constraint("DistanceX", 1, 1, 1, 2, Q("78 mm")),
    Sketcher.Constraint("DistanceX", 4, 2, 4, 1, Q("71 mm")),
    Sketcher.Constraint("DistanceY", 0, 2, 0, 1, Q("128 mm")),
    Sketcher.Constraint("DistanceY", 5, 1, 5, 2, Q("123 mm")),
    Sketcher.Constraint("DistanceY", 0, 2, 4, 2, Q("2 mm")),
    Sketcher.Constraint("DistanceX", -1, 1, 4, 2, Q("3.5 mm")),
    Sketcher.Constraint("DistanceY", 0, 2, -1, 1, Q("1487.161797 mm")),
])
pad4 = body.newObject("PartDesign::Pad", "Pad003")
pad4.Profile = sketch6
pad4.Length = 2
pad4.Reversed = True

sketch7 = body.newObject("Sketcher::SketchObject", "Sketch006")
sketch7.AttachmentSupport = (doc.getObject("XZ_Plane"), [""])
sketch7.MapMode = "FlatFace"
sketch7.AttachmentOffset = App.Placement(V(0, 0, -2), App.Rotation())
add_polygon(sketch7, [(77, -1375.2), (77, -1373.2), (78, -1373.2), (78, -1375.2)])
add_polygon(sketch7, [(0, -1375.2), (0, -1373.2), (1, -1373.2), (1, -1375.2)])
add_polygon(sketch7, [(0, -1474.2), (0, -1472.2), (1, -1472.2), (1, -1474.2)])
add_polygon(sketch7, [(77, -1474.2), (77, -1472.2), (78, -1472.2), (78, -1474.2)])
sketch7.addConstraint([
    Sketcher.Constraint("Vertical", 0),
    Sketcher.Constraint("Horizontal", 1),
    Sketcher.Constraint("Vertical", 2),
    Sketcher.Constraint("Horizontal", 3),
    Sketcher.Constraint("Vertical", 4),
    Sketcher.Constraint("Horizontal", 5),
    Sketcher.Constraint("Vertical", 6),
    Sketcher.Constraint("Horizontal", 7),
    Sketcher.Constraint("Vertical", 8),
    Sketcher.Constraint("Horizontal", 9),
    Sketcher.Constraint("Vertical", 10),
    Sketcher.Constraint("Horizontal", 11),
    Sketcher.Constraint("Vertical", 12),
    Sketcher.Constraint("Horizontal", 13),
    Sketcher.Constraint("Vertical", 14),
    Sketcher.Constraint("Horizontal", 15),
    Sketcher.Constraint("PointOnObject", 4, 2, -2),
    Sketcher.Constraint("PointOnObject", 8, 2, -2),
    Sketcher.Constraint("Horizontal", 1, 2, 4, 2),
    Sketcher.Constraint("Horizontal", 3, 2, 6, 2),
    Sketcher.Constraint("Horizontal", 9, 2, 12, 2),
    Sketcher.Constraint("Horizontal", 11, 2, 14, 2),
    Sketcher.Constraint("Vertical", 6, 2, 9, 2),
    Sketcher.Constraint("Vertical", 3, 2, 12, 2),
    Sketcher.Constraint("Vertical", 2, 2, 13, 2),
    Sketcher.Constraint("Equal", 3, 5),
    Sketcher.Constraint("Equal", 6, 8),
    Sketcher.Constraint("DistanceX", 1, 1, 1, 2, Q("1 mm")),
    Sketcher.Constraint("DistanceY", 0, 1, 0, 2, Q("2 mm")),
    Sketcher.Constraint("DistanceX", -1, 1, 0, 2, Q("77 mm")),
    Sketcher.Constraint("DistanceY", 8, 2, 7, 2, Q("97 mm")),
    Sketcher.Constraint("DistanceY", 0, 2, -1, 1, Q("1373.161797 mm")),
])
pad5 = body.newObject("PartDesign::Pad", "Pad004")
pad5.Profile = sketch7
pad5.Length = 13
pad5.Reversed = True

sketch8 = body.newObject("Sketcher::SketchObject", "Sketch007")
sketch8.AttachmentSupport = (doc.getObject("XZ_Plane"), [""])
sketch8.MapMode = "FlatFace"
sketch8.AttachmentOffset = App.Placement(V(0, 0, -15), App.Rotation())
sketch8.addGeometry([
    Part.Circle(V(62, -1501.7, 0), V(0, 0, 1), 2.5),
    Part.Circle(V(16, -1501.7, 0), V(0, 0, 1), 2.5),
    Part.Circle(V(62, -1344.7, 0), V(0, 0, 1), 2.5),
    Part.Circle(V(16, -1344.7, 0), V(0, 0, 1), 2.5),
], False)
sketch8.addConstraint([
    Sketcher.Constraint("Equal", 0, 1),
    Sketcher.Constraint("Equal", 1, 2),
    Sketcher.Constraint("Equal", 2, 3),
    Sketcher.Constraint("Horizontal", 0, 3, 1, 3),
    Sketcher.Constraint("Horizontal", 2, 3, 3, 3),
    Sketcher.Constraint("Vertical", 0, 3, 2, 3),
    Sketcher.Constraint("Vertical", 1, 3, 3, 3),
    Sketcher.Constraint("Diameter", 0, Q("4.9 mm")),
    Sketcher.Constraint("DistanceX", -1, 1, 0, 3, Q("62 mm")),
    Sketcher.Constraint("DistanceX", -1, 1, 1, 3, Q("16 mm")),
    Sketcher.Constraint("DistanceY", 0, 3, 2, 3, Q("157 mm")),
    Sketcher.Constraint("DistanceY", 0, 3, -1, 1, Q("1501.661797 mm")),
])
pad6 = body.newObject("PartDesign::Pad", "Pad005")
pad6.Profile = sketch8
pad6.Length = 13

sketch9 = body.newObject("Sketcher::SketchObject", "Sketch008")
sketch9.AttachmentSupport = (doc.getObject("XZ_Plane"), [""])
sketch9.MapMode = "FlatFace"
sketch9.AttachmentOffset = App.Placement(V(0, 0, -15), App.Rotation())
add_polygon(sketch9, [(8, -1345), (8, -1307), (70, -1307), (70, -1345)])
add_polygon(sketch9, [(8, -1539), (8, -1501), (70, -1501), (70, -1539)])
sketch9.addConstraint([
    Sketcher.Constraint("Vertical", 0),
    Sketcher.Constraint("Horizontal", 1),
    Sketcher.Constraint("Vertical", 2),
    Sketcher.Constraint("Horizontal", 3),
    Sketcher.Constraint("Vertical", 4),
    Sketcher.Constraint("Horizontal", 5),
    Sketcher.Constraint("Vertical", 6),
    Sketcher.Constraint("Horizontal", 7),
    Sketcher.Constraint("Vertical", 3, 2, 4, 2),
    Sketcher.Constraint("Vertical", 2, 2, 5, 2),
    Sketcher.Constraint("Equal", 2, 4),
    Sketcher.Constraint("DistanceY", 4, 2, 3, 2, Q("156 mm")),
    Sketcher.Constraint("DistanceX", 1, 1, 1, 2, Q("62.395435 mm")),
    Sketcher.Constraint("DistanceY", 0, 1, 0, 2, Q("37.793362 mm")),
    Sketcher.Constraint("DistanceY", 6, 2, -1, 1, Q("1538.95516 mm")),
    Sketcher.Constraint("DistanceX", -1, 1, 0, 2, Q("7.802283 mm")),
])
pocket3 = body.newObject("PartDesign::Pocket", "Pocket002")
pocket3.Profile = sketch9
pocket3.Length = 15
pocket3.Reversed = True

sketch10 = body.newObject("Sketcher::SketchObject", "Sketch009")
sketch10.AttachmentSupport = (doc.getObject("XZ_Plane"), [""])
sketch10.MapMode = "FlatFace"
sketch10.AttachmentOffset = App.Placement(V(0, 0, -15), App.Rotation())
add_polygon(sketch10, [(-3, -1343.2), (81, -1343.2), (81, -1352.4), (79.3, -1352.4), (79.3, -1348.2), (-0.9, -1348.2), (-0.9, -1353.2), (-3, -1353.2)])
add_polygon(sketch10, [(79.3, -1498.2), (79.3, -1493.9), (81, -1493.9), (81, -1503.2), (-3, -1503.2), (-3, -1493.2), (-0.9, -1493.2), (-0.9, -1498.2)])
sketch10.addConstraint([
    Sketcher.Constraint("Horizontal", 0),
    Sketcher.Constraint("Vertical", 1),
    Sketcher.Constraint("Horizontal", 2),
    Sketcher.Constraint("Vertical", 3),
    Sketcher.Constraint("Horizontal", 4),
    Sketcher.Constraint("Vertical", 5),
    Sketcher.Constraint("Horizontal", 6),
    Sketcher.Constraint("Vertical", 7),
    Sketcher.Constraint("Vertical", 8),
    Sketcher.Constraint("Horizontal", 9),
    Sketcher.Constraint("Vertical", 10),
    Sketcher.Constraint("Horizontal", 11),
    Sketcher.Constraint("Vertical", 12),
    Sketcher.Constraint("Horizontal", 13),
    Sketcher.Constraint("Vertical", 14),
    Sketcher.Constraint("Horizontal", 15),
    Sketcher.Constraint("Vertical", 3, 2, 8, 2),
    Sketcher.Constraint("Vertical", 1, 2, 9, 2),
    Sketcher.Constraint("Vertical", 7, 2, 11, 2),
    Sketcher.Constraint("Vertical", 5, 2, 13, 2),
    Sketcher.Constraint("Equal", 3, 8),
    Sketcher.Constraint("Equal", 1, 10),
    Sketcher.Constraint("Equal", 7, 12),
    Sketcher.Constraint("DistanceX", 0, 1, 0, 2, Q("84 mm")),
    Sketcher.Constraint("DistanceY", 5, 2, 5, 1, Q("5 mm")),
    Sketcher.Constraint("DistanceY", 7, 1, 7, 2, Q("10 mm")),
    Sketcher.Constraint("DistanceX", -1, 1, 0, 2, Q("81 mm")),
    Sketcher.Constraint("DistanceY", 10, 2, 3, 2, Q("155 mm")),
    Sketcher.Constraint("DistanceX", 6, 2, 6, 1, Q("2.145011 mm")),
    Sketcher.Constraint("DistanceX", 2, 2, 2, 1, Q("1.697167 mm")),
    Sketcher.Constraint("DistanceY", 1, 2, 1, 1, Q("9.239522 mm")),
    Sketcher.Constraint("DistanceY", 1, 2, -1, 1, Q("1352.40132 mm")),
])
pad7 = body.newObject("PartDesign::Pad", "Pad006")
pad7.Profile = sketch10
pad7.Length = 15

sketch11 = body.newObject("Sketcher::SketchObject", "Sketch010")
sketch11.AttachmentSupport = (doc.getObject("XZ_Plane"), [""])
sketch11.MapMode = "FlatFace"
sketch11.AttachmentOffset = App.Placement(V(0, 0, -15), App.Rotation())
sketch11.addGeometry([
    Part.Circle(V(0, -1346.2, 0), V(0, 0, 1), 1.4),
    Part.Circle(V(0, -1500.2, 0), V(0, 0, 1), 1.4),
    Part.Circle(V(78, -1500.2, 0), V(0, 0, 1), 1.4),
    Part.Circle(V(78, -1346.2, 0), V(0, 0, 1), 1.4),
], False)
sketch11.addConstraint([
    Sketcher.Constraint("Equal", 0, 1),
    Sketcher.Constraint("Equal", 1, 2),
    Sketcher.Constraint("Equal", 2, 3),
    Sketcher.Constraint("PointOnObject", 0, 3, -2),
    Sketcher.Constraint("PointOnObject", 1, 3, -2),
    Sketcher.Constraint("Horizontal", 1, 3, 2, 3),
    Sketcher.Constraint("Horizontal", 0, 3, 3, 3),
    Sketcher.Constraint("Vertical", 2, 3, 3, 3),
    Sketcher.Constraint("Diameter", 0, Q("2.9 mm")),
    Sketcher.Constraint("DistanceX", -1, 1, 2, 3, Q("78 mm")),
    Sketcher.Constraint("DistanceY", 1, 3, 0, 3, Q("154 mm")),
    Sketcher.Constraint("DistanceY", 0, 3, -1, 1, Q("1346.161797 mm")),
])
pocket4 = body.newObject("PartDesign::Pocket", "Pocket003")
pocket4.Profile = sketch11
pocket4.Length = 13
pocket4.Reversed = True
doc.recompute()

fillet8 = body.newObject("PartDesign::Fillet", "Fillet007")
fillet8.Base = (pocket4, edges_at(pocket4, [
    (81, 7.5, -1343.162),
    (-3, 7.5, -1343.162),
    (-3, 7.5, -1503.162),
    (81, 7.5, -1503.162),
]))
fillet8.Radius = 2
doc.recompute()

chamfer = body.newObject("PartDesign::Chamfer", "Chamfer")
chamfer.Base = (fillet8, edges_at(fillet8, [
    (74.5, 0, -1423.662),
    (39, 0, -1485.162),
    (3.5, 0, -1423.662),
    (39, 0, -1362.162),
    (81, 0, -1423.162),
    (39, 0, -1503.162),
    (39, 0, -1343.162),
    (-3, 0, -1423.162),
    (80.414, 0, -1343.748),
    (-2.414, 0, -1343.748),
    (-2.414, 0, -1502.576),
    (80.414, 0, -1502.576),
]))
chamfer.Size = 1.5

doc.recompute()
